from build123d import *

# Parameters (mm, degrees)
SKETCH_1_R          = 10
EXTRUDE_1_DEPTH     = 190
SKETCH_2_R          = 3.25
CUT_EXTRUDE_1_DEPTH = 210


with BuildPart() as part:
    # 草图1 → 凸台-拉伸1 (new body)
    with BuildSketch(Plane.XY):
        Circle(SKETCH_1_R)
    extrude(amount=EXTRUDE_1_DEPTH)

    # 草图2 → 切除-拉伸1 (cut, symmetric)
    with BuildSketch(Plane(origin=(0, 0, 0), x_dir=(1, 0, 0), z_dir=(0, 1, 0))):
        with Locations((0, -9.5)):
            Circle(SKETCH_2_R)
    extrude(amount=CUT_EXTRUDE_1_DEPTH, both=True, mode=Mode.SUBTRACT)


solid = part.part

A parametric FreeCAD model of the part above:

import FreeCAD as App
import Part
import Sketcher
Q = App.Units.Quantity

doc = App.newDocument("Part")
body = doc.addObject("PartDesign::Body", "Body")

# Sketch on XY plane
sketch1 = body.newObject("Sketcher::SketchObject", "Sketch")
sketch1.AttachmentSupport = (doc.getObject("XY_Plane"), [""])
sketch1.MapMode = "FlatFace"
sketch1.addGeometry(Part.Circle(App.Vector(0, 0, 0), App.Vector(0, 0, 1), 10), False)
sketch1.addConstraint([
    Sketcher.Constraint("Coincident", 0, 3, -1, 1),
    Sketcher.Constraint("Diameter", 0, Q("20 mm")),
])
pad1 = body.newObject("PartDesign::Pad", "Pad")
pad1.Profile = sketch1
pad1.Length = 190

# Sketch on XZ plane
sketch2 = body.newObject("Sketcher::SketchObject", "Sketch001")
sketch2.AttachmentSupport = (doc.getObject("XZ_Plane"), [""])
sketch2.MapMode = "FlatFace"
sketch2.addGeometry(Part.Circle(App.Vector(0, 9.5, 0), App.Vector(0, 0, 1), 3.2), False)
sketch2.addConstraint([
    Sketcher.Constraint("PointOnObject", 0, 3, -2),
    Sketcher.Constraint("Diameter", 0, Q("6.5 mm")),
    Sketcher.Constraint("DistanceY", -1, 1, 0, 3, Q("9.5 mm")),
])
pocket1 = body.newObject("PartDesign::Pocket", "Pocket")
pocket1.Profile = sketch2
pocket1.Length = 420
pocket1.Midplane = True

doc.recompute()
